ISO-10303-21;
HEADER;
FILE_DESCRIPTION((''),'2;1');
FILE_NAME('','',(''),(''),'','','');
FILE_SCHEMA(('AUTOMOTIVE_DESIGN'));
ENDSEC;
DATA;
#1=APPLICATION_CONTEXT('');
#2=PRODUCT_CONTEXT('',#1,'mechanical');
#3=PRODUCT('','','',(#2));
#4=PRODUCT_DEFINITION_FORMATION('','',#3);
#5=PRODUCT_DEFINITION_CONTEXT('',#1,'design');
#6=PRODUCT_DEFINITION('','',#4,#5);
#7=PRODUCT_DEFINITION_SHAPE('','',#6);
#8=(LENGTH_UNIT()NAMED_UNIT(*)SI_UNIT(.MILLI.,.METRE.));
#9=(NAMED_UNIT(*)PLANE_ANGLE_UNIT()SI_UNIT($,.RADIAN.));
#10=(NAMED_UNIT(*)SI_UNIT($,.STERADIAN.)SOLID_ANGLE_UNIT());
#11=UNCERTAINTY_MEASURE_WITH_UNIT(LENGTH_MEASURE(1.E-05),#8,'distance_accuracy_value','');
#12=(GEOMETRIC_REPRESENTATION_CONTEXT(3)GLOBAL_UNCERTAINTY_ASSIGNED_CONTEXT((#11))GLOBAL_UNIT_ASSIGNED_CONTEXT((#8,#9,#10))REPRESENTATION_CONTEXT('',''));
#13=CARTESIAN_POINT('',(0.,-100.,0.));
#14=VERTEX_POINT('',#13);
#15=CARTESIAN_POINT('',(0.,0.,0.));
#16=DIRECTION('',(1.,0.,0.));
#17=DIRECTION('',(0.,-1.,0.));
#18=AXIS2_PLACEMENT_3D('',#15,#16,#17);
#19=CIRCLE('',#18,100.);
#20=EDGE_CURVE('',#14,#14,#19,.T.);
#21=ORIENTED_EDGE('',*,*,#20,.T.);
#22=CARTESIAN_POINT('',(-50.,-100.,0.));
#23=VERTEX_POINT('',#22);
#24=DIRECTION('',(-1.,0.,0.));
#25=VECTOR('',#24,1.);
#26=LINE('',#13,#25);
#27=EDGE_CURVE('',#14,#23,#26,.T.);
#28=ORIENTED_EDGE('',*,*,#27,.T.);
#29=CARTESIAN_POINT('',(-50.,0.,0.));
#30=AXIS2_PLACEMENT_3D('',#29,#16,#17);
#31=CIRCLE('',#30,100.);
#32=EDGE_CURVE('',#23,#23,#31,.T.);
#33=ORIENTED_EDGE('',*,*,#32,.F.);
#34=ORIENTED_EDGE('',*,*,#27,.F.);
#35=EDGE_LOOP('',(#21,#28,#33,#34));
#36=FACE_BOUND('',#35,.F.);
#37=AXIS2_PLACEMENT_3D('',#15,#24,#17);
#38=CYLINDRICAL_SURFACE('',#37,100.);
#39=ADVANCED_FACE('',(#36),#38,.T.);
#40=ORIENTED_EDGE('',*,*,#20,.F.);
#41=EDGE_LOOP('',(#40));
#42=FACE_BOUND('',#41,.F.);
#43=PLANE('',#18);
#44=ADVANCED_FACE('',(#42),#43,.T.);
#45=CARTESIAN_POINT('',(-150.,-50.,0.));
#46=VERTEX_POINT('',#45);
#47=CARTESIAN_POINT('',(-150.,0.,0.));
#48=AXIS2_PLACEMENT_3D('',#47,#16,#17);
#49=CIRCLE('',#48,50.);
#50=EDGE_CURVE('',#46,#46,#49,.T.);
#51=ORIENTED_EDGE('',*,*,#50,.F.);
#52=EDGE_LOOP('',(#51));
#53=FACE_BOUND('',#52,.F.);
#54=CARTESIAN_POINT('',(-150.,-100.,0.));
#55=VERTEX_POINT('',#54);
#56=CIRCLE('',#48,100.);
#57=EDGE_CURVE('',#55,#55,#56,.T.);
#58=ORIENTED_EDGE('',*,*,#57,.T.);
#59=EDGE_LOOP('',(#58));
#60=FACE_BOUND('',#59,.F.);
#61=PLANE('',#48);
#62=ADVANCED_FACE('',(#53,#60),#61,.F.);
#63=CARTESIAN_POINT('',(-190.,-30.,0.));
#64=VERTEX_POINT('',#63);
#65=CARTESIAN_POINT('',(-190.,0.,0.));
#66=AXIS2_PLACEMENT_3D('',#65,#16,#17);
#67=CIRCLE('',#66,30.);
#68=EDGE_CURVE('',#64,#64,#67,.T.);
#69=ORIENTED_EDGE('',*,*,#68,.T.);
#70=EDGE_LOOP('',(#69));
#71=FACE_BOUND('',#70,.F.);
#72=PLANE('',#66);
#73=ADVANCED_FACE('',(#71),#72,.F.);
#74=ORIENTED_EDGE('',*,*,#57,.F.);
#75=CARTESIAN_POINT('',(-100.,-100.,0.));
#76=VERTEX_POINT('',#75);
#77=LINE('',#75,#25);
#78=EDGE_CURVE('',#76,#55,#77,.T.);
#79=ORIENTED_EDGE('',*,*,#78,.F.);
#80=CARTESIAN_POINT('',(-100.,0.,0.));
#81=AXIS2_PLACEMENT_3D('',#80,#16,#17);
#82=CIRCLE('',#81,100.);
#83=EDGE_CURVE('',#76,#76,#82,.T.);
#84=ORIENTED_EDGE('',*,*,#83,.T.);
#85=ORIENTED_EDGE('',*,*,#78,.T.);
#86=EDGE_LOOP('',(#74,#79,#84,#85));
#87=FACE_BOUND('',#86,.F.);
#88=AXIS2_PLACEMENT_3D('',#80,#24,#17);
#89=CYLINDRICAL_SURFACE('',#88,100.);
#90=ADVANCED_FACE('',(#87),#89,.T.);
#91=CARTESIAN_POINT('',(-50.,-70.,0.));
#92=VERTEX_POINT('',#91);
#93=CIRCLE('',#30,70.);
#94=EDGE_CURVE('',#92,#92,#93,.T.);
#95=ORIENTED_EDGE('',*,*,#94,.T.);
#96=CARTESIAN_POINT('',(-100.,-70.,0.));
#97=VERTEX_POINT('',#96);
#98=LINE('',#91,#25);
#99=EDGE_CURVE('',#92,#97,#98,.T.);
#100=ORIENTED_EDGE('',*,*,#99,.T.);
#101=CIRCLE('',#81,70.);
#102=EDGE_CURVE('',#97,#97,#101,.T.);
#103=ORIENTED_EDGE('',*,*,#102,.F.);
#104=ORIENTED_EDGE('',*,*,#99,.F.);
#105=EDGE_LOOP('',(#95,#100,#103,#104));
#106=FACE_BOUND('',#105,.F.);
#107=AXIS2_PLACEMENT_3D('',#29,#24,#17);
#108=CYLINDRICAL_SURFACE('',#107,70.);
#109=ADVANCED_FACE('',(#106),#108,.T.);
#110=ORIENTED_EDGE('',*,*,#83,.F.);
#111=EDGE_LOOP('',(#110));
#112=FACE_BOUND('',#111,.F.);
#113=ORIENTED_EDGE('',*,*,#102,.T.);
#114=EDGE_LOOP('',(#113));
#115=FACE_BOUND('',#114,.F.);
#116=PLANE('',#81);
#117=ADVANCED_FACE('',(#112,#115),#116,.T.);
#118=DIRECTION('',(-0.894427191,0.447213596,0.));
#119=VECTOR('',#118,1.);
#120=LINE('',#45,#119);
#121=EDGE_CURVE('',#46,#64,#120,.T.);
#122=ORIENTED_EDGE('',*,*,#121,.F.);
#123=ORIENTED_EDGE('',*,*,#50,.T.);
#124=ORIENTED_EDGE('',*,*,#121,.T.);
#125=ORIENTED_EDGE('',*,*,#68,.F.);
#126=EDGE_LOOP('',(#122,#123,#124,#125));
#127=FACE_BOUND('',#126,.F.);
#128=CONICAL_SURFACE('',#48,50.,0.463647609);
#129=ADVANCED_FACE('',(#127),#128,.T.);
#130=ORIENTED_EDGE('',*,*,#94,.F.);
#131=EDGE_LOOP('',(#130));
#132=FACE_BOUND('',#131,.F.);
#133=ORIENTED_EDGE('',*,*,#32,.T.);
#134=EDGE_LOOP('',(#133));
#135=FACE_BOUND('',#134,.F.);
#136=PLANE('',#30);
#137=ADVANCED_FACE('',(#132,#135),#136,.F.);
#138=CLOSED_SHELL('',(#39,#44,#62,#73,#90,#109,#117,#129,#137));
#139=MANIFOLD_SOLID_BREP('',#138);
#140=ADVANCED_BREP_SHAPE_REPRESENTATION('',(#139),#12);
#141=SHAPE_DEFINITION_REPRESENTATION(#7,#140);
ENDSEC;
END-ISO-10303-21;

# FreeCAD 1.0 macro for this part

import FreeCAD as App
import Part
import Sketcher
Q = App.Units.Quantity

doc = App.newDocument("Part")
params = doc.addObject("Spreadsheet::Sheet", "Params")
for row, (alias, value) in enumerate([
    ("sketch1_width", "190 mm"),
    ("sketch1_width2", "50 mm"),
    ("sketch1_height", "100 mm"),
    ("sketch1_height2", "30 mm"),
    ("revolution_angle", "360 deg"),
], start=1):
    params.set(f"A{row}", alias)
    params.set(f"B{row}", "=" + value)
    params.setAlias(f"B{row}", alias)

body = doc.addObject("PartDesign::Body", "Body")

# Sketch on XY plane
sketch1 = body.newObject("Sketcher::SketchObject", "Sketch")
sketch1.AttachmentSupport = (doc.getObject("XY_Plane"), [""])
sketch1.MapMode = "FlatFace"
sketch1.addGeometry(Part.LineSegment(App.Vector(0, -100, 0), App.Vector(0, 0, 0)), False)
sketch1.addGeometry(Part.LineSegment(App.Vector(0, 0, 0), App.Vector(-190, 0, 0)), False)
sketch1.addGeometry(Part.LineSegment(App.Vector(-190, 0, 0), App.Vector(-190, -30, 0)), False)
sketch1.addGeometry(Part.LineSegment(App.Vector(-190, -30, 0), App.Vector(-150, -50, 0)), False)
sketch1.addGeometry(Part.LineSegment(App.Vector(-150, -50, 0), App.Vector(-150, -100, 0)), False)
sketch1.addGeometry(Part.LineSegment(App.Vector(-150, -100, 0), App.Vector(-100, -100, 0)), False)
sketch1.addGeometry(Part.LineSegment(App.Vector(-100, -100, 0), App.Vector(-100, -70, 0)), False)
sketch1.addGeometry(Part.LineSegment(App.Vector(-100, -70, 0), App.Vector(-50, -70, 0)), False)
sketch1.addGeometry(Part.LineSegment(App.Vector(-50, -70, 0), App.Vector(-50, -100, 0)), False)
sketch1.addGeometry(Part.LineSegment(App.Vector(-50, -100, 0), App.Vector(0, -100, 0)), False)
sketch1.addConstraint(Sketcher.Constraint("Coincident", 0, 2, 1, 1))
sketch1.addConstraint(Sketcher.Constraint("Coincident", 1, 2, 2, 1))
sketch1.addConstraint(Sketcher.Constraint("Coincident", 2, 2, 3, 1))
sketch1.addConstraint(Sketcher.Constraint("Coincident", 3, 2, 4, 1))
sketch1.addConstraint(Sketcher.Constraint("Coincident", 4, 2, 5, 1))
sketch1.addConstraint(Sketcher.Constraint("Coincident", 5, 2, 6, 1))
sketch1.addConstraint(Sketcher.Constraint("Coincident", 6, 2, 7, 1))
sketch1.addConstraint(Sketcher.Constraint("Coincident", 7, 2, 8, 1))
sketch1.addConstraint(Sketcher.Constraint("Coincident", 8, 2, 9, 1))
sketch1.addConstraint(Sketcher.Constraint("Coincident", 9, 2, 0, 1))
sketch1.addConstraint(Sketcher.Constraint("Vertical", 0))
sketch1.addConstraint(Sketcher.Constraint("Horizontal", 1))
sketch1.addConstraint(Sketcher.Constraint("Vertical", 2))
sketch1.addConstraint(Sketcher.Constraint("Vertical", 4))
sketch1.addConstraint(Sketcher.Constraint("Horizontal", 5))
sketch1.addConstraint(Sketcher.Constraint("Vertical", 6))
sketch1.addConstraint(Sketcher.Constraint("Horizontal", 7))
sketch1.addConstraint(Sketcher.Constraint("Vertical", 8))
sketch1.addConstraint(Sketcher.Constraint("Horizontal", 9))
sketch1.addConstraint(Sketcher.Constraint("Coincident", 0, 2, -1, 1))
sketch1.addConstraint(Sketcher.Constraint("Horizontal", 5, 2, 8, 2))
sketch1.addConstraint(Sketcher.Constraint("Equal", 5, 7))
sketch1.addConstraint(Sketcher.Constraint("Equal", 7, 9))
sketch1.addConstraint(Sketcher.Constraint("Equal", 9, 4))
sketch1.addConstraint(Sketcher.Constraint("Equal", 2, 6))
sketch1.addConstraint(Sketcher.Constraint("DistanceX", 1, 2, 1, 1, Q("190 mm")))
sketch1.addConstraint(Sketcher.Constraint("DistanceX", 5, 1, 5, 2, Q("50 mm")))
sketch1.addConstraint(Sketcher.Constraint("DistanceY", 0, 1, 0, 2, Q("100 mm")))
sketch1.addConstraint(Sketcher.Constraint("DistanceY", 2, 2, 2, 1, Q("30 mm")))
sketch1.setExpression("Constraints[25]", "Params.sketch1_width")
sketch1.setExpression("Constraints[26]", "Params.sketch1_width2")
sketch1.setExpression("Constraints[27]", "Params.sketch1_height")
sketch1.setExpression("Constraints[28]", "Params.sketch1_height2")
revolution = body.newObject("PartDesign::Revolution", "Revolution")
revolution.Profile = sketch1
revolution.ReferenceAxis = (sketch1, ["H_Axis"])
revolution.setExpression("Angle", "Params.revolution_angle")

doc.recompute()
